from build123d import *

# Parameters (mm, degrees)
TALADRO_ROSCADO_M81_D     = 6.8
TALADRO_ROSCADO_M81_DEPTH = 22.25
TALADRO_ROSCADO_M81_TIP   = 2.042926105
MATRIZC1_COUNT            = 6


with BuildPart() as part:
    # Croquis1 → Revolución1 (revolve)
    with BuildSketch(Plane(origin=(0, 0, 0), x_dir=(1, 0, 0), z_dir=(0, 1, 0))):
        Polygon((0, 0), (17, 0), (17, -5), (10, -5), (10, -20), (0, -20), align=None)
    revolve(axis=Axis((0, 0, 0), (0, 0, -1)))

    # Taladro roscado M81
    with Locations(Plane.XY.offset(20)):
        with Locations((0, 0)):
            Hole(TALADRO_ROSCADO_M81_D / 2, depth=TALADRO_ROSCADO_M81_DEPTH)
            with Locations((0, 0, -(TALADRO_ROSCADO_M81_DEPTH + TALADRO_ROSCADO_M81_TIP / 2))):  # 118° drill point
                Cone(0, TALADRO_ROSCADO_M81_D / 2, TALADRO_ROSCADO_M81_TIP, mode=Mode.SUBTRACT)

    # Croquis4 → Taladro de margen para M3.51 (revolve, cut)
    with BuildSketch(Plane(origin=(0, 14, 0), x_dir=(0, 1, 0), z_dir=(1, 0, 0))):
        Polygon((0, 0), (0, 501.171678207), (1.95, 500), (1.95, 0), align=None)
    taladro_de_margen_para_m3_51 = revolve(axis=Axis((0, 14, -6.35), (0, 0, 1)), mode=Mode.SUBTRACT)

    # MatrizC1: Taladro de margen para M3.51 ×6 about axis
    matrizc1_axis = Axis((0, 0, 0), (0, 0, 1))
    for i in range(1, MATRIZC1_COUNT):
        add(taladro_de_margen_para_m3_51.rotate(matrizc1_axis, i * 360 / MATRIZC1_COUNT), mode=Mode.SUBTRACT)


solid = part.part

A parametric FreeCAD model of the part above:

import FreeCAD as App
import Part
import Sketcher

V = App.Vector
Q = App.Units.Quantity

doc = App.newDocument("Part")
params = doc.addObject("Spreadsheet::Sheet", "Params")
for row, (alias, value) in enumerate([
    ("sketch1_width", "17 mm"),
    ("sketch1_width2", "10 mm"),
    ("sketch1_height", "20 mm"),
    ("sketch1_height2", "15 mm"),
    ("revolution_angle", "360 deg"),
    ("sketch2_diameter", "6.8 mm"),
    ("hole_diameter", "6.8 mm"),
    ("hole_depth", "22.25 mm"),
    ("sketch3_height", "500 mm"),
    ("sketch3_width", "1.95 mm"),
    ("groove_angle", "360 deg"),
], start=1):
    params.set(f"A{row}", alias)
    params.set(f"B{row}", "=" + value)
    params.setAlias(f"B{row}", alias)

body = doc.addObject("PartDesign::Body", "Body")

sketch1 = body.newObject("Sketcher::SketchObject", "Sketch")
sketch1.AttachmentSupport = (doc.getObject("XZ_Plane"), [""])
sketch1.MapMode = "FlatFace"
sketch1.addGeometry([
    Part.LineSegment(V(17, 0, 0), V(0, 0, 0)),
    Part.LineSegment(V(0, 0, 0), V(0, 20, 0)),
    Part.LineSegment(V(0, 20, 0), V(10, 20, 0)),
    Part.LineSegment(V(10, 20, 0), V(10, 5, 0)),
    Part.LineSegment(V(10, 5, 0), V(17, 5, 0)),
    Part.LineSegment(V(17, 5, 0), V(17, 0, 0)),
], False)
sketch1.addConstraint([
    Sketcher.Constraint("Coincident", 0, 2, 1, 1),
    Sketcher.Constraint("Coincident", 1, 2, 2, 1),
    Sketcher.Constraint("Coincident", 2, 2, 3, 1),
    Sketcher.Constraint("Coincident", 3, 2, 4, 1),
    Sketcher.Constraint("Coincident", 4, 2, 5, 1),
    Sketcher.Constraint("Coincident", 5, 2, 0, 1),
    Sketcher.Constraint("Horizontal", 0),
    Sketcher.Constraint("Vertical", 1),
    Sketcher.Constraint("Horizontal", 2),
    Sketcher.Constraint("Vertical", 3),
    Sketcher.Constraint("Horizontal", 4),
    Sketcher.Constraint("Vertical", 5),
    Sketcher.Constraint("Coincident", 0, 2, -1, 1),
    Sketcher.Constraint("DistanceX", 0, 2, 0, 1, Q("17 mm")),
    Sketcher.Constraint("DistanceX", 2, 1, 2, 2, Q("10 mm")),
    Sketcher.Constraint("DistanceY", 1, 1, 1, 2, Q("20 mm")),
    Sketcher.Constraint("DistanceY", 3, 2, 3, 1, Q("15 mm")),
])
sketch1.setExpression("Constraints[13]", "Params.sketch1_width")
sketch1.setExpression("Constraints[14]", "Params.sketch1_width2")
sketch1.setExpression("Constraints[15]", "Params.sketch1_height")
sketch1.setExpression("Constraints[16]", "Params.sketch1_height2")
revolution = body.newObject("PartDesign::Revolution", "Revolution")
revolution.Profile = sketch1
revolution.ReferenceAxis = (sketch1, ["V_Axis"])
revolution.setExpression("Angle", "Params.revolution_angle")

sketch2 = body.newObject("Sketcher::SketchObject", "Sketch001")
sketch2.AttachmentSupport = (doc.getObject("XY_Plane"), [""])
sketch2.MapMode = "FlatFace"
sketch2.AttachmentOffset = App.Placement(V(0, 0, 20), App.Rotation())
sketch2.addGeometry(Part.Circle(V(0, 0, 0), V(0, 0, 1), 3.4), False)
sketch2.addConstraint([
    Sketcher.Constraint("Coincident", 0, 3, -1, 1),
    Sketcher.Constraint("Diameter", 0, Q("6.8 mm")),
])
sketch2.setExpression("Constraints[1]", "Params.sketch2_diameter")
doc.recompute()
hole = body.newObject("PartDesign::Hole", "Hole")
hole.Profile = sketch2
hole.ThreadType = "None"
hole.setExpression("Diameter", "Params.hole_diameter")
hole.DepthType = "Dimension"
hole.setExpression("Depth", "Params.hole_depth")
hole.DrillPoint = "Angled"
hole.DrillPointAngle = 118

sketch3 = body.newObject("Sketcher::SketchObject", "Sketch002")
sketch3.AttachmentSupport = (doc.getObject("YZ_Plane"), [""])
sketch3.MapMode = "FlatFace"
sketch3.addGeometry([
    Part.LineSegment(V(14, 501.2, 0), V(14, 0, 0)),
    Part.LineSegment(V(14, 0, 0), V(15.9, 0, 0)),
    Part.LineSegment(V(15.9, 0, 0), V(15.9, 500, 0)),
    Part.LineSegment(V(15.9, 500, 0), V(14, 501.2, 0)),
], False)
sketch3.addGeometry(Part.LineSegment(V(14, 0, 0), V(14, 501.2, 0)), True)
sketch3.addConstraint([
    Sketcher.Constraint("Coincident", 0, 2, 1, 1),
    Sketcher.Constraint("Coincident", 1, 2, 2, 1),
    Sketcher.Constraint("Coincident", 2, 2, 3, 1),
    Sketcher.Constraint("Coincident", 3, 2, 0, 1),
    Sketcher.Constraint("Vertical", 0),
    Sketcher.Constraint("Horizontal", 1),
    Sketcher.Constraint("Vertical", 2),
    Sketcher.Constraint("Vertical", 4),
    Sketcher.Constraint("Coincident", 4, 1, 0, 2),
    Sketcher.Constraint("PointOnObject", 0, 2, -1),
    Sketcher.Constraint("Equal", 0, 4),
    Sketcher.Constraint("DistanceY", 2, 1, 2, 2, Q("500 mm")),
    Sketcher.Constraint("Angle", 3, Q("149 deg")),
    Sketcher.Constraint("DistanceX", -1, 1, 0, 2, Q("14 mm")),
    Sketcher.Constraint("DistanceX", 1, 1, 1, 2, Q("1.95 mm")),
])
sketch3.setExpression("Constraints[11]", "Params.sketch3_height")
sketch3.setExpression("Constraints[14]", "Params.sketch3_width")
groove = body.newObject("PartDesign::Groove", "Groove")
groove.Profile = sketch3
groove.ReferenceAxis = (sketch3, ["Axis0"])
groove.setExpression("Angle", "Params.groove_angle")
doc.recompute()

polarpattern = body.newObject("PartDesign::PolarPattern", "PolarPattern")
polarpattern.Originals = [groove]
polarpattern.Axis = (doc.getObject("Z_Axis"), [""])
polarpattern.Angle = 360
polarpattern.Occurrences = 6
body.Tip = polarpattern

doc.recompute()
